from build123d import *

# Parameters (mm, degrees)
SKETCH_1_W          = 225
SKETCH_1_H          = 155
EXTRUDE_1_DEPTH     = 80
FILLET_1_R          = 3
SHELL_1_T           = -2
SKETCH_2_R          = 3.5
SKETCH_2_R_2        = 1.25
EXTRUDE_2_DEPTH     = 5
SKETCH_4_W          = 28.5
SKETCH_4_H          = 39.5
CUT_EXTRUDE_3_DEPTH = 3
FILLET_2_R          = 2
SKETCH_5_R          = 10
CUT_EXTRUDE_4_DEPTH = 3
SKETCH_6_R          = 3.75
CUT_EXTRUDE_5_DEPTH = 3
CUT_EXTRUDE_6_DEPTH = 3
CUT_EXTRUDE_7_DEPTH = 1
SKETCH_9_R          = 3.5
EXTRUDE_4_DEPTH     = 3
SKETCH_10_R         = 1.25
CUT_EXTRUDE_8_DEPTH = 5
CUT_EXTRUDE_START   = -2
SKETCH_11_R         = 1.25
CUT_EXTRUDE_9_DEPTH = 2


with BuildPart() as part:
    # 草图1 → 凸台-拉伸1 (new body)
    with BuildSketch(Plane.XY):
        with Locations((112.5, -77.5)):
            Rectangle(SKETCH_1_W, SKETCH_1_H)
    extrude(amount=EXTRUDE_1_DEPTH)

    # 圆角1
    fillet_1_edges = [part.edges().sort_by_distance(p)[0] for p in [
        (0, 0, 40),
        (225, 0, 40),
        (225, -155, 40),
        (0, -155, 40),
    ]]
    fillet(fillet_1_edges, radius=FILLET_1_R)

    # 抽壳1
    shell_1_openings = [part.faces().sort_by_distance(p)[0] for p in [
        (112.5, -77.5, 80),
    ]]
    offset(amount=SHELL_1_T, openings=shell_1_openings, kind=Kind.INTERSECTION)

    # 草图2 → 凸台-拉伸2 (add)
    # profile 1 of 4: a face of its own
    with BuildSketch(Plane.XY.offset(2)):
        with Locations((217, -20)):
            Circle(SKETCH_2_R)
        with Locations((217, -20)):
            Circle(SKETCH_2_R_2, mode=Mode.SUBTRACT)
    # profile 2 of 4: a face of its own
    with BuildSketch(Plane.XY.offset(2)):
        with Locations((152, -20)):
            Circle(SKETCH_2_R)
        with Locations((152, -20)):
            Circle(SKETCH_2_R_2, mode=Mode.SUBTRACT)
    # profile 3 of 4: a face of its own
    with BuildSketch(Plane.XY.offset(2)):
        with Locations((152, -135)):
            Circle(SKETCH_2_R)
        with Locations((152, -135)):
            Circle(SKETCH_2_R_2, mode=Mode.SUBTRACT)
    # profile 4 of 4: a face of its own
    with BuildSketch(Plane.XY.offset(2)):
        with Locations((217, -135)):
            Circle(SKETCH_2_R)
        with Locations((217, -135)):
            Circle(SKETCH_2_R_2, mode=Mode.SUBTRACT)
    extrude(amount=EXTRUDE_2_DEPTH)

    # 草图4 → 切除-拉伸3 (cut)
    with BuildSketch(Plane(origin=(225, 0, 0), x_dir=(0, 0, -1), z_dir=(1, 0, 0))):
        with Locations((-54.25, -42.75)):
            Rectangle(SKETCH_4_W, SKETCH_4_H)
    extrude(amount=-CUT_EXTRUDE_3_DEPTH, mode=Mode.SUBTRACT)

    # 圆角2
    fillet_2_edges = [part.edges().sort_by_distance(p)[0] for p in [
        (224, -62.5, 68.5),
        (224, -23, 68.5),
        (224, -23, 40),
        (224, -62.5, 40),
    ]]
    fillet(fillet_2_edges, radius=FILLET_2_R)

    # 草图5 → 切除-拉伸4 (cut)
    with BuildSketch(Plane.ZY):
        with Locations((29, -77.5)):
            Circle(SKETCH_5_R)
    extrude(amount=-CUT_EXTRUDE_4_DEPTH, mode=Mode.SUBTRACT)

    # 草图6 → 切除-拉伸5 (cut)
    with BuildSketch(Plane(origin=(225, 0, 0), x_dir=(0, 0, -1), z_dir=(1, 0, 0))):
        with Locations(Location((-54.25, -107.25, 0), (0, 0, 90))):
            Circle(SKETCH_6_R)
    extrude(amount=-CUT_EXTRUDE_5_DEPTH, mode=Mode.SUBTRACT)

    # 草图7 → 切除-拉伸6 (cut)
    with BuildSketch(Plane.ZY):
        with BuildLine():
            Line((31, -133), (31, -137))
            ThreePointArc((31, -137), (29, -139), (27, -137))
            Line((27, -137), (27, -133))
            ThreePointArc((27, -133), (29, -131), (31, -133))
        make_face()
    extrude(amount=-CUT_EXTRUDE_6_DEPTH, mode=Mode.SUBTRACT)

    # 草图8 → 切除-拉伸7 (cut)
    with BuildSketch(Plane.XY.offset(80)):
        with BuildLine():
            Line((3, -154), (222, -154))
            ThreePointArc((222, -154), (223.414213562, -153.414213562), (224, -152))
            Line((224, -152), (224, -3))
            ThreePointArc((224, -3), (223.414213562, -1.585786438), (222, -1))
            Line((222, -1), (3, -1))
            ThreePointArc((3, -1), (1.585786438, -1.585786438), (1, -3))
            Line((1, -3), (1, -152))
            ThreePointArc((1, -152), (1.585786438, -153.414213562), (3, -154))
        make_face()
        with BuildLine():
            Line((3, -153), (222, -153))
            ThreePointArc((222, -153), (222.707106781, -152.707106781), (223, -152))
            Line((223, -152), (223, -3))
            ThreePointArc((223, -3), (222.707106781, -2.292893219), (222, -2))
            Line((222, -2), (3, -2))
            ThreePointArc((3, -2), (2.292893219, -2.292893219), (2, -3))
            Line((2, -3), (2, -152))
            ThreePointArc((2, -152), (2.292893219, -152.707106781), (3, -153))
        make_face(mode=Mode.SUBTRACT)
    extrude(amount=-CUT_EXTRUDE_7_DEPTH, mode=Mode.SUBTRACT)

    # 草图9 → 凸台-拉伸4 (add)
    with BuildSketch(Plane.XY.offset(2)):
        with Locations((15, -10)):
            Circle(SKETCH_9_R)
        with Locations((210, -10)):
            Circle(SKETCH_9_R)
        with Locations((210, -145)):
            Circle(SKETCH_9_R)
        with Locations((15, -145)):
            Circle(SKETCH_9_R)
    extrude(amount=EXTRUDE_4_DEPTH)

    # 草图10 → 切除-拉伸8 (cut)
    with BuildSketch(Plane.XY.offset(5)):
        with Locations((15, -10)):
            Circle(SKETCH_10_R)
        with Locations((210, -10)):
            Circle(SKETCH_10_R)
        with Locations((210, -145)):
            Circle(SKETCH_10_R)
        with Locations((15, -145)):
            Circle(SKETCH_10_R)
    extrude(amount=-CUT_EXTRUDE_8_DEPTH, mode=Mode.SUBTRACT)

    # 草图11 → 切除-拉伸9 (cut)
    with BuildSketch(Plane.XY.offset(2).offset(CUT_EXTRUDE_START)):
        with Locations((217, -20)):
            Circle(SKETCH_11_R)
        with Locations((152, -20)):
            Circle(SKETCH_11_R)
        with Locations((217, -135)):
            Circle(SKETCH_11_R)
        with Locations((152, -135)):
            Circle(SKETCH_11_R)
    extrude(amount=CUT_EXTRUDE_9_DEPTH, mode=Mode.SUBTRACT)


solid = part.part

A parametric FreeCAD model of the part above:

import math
import FreeCAD as App
import Part
import Sketcher
from FreeCAD import Vector


def edges_at(feature, points):
    """Names of the edges that pass closest to the given points."""
    edges = feature.Shape.Edges
    near = lambda p: min(range(len(edges)), key=lambda i: edges[i].distToShape(Part.Vertex(*p))[0])
    return sorted({f"Edge{near(p) + 1}" for p in points})


def faces_at(feature, points):
    """Names of the faces that lie closest to the given points."""
    faces = feature.Shape.Faces
    near = lambda p: min(range(len(faces)), key=lambda i: faces[i].distToShape(Part.Vertex(*p))[0])
    return sorted({f"Face{near(p) + 1}" for p in points})

doc = App.newDocument("Part")
body = doc.addObject("PartDesign::Body", "Body")

sketch1 = body.newObject("Sketcher::SketchObject", "Sketch")
sketch1.AttachmentSupport = (doc.getObject("XY_Plane"), [""])
sketch1.MapMode = "FlatFace"
sketch1.addGeometry([
    Part.LineSegment(Vector(0, 0, 0), Vector(0, -155, 0)),
    Part.LineSegment(Vector(0, -155, 0), Vector(225, -155, 0)),
    Part.LineSegment(Vector(225, -155, 0), Vector(225, 0, 0)),
    Part.LineSegment(Vector(225, 0, 0), Vector(0, 0, 0)),
], False)
sketch1.addConstraint([
    Sketcher.Constraint("Coincident", 0, 2, 1, 1),
    Sketcher.Constraint("Coincident", 1, 2, 2, 1),
    Sketcher.Constraint("Coincident", 2, 2, 3, 1),
    Sketcher.Constraint("Coincident", 3, 2, 0, 1),
    Sketcher.Constraint("Vertical", 0),
    Sketcher.Constraint("Horizontal", 1),
    Sketcher.Constraint("Vertical", 2),
    Sketcher.Constraint("Horizontal", 3),
    Sketcher.Constraint("Coincident", 3, 2, -1, 1),
    Sketcher.Constraint("DistanceX", 1, 1, 1, 2, 225.0),
    Sketcher.Constraint("DistanceY", 0, 2, 0, 1, 155.0),
])
pad1 = body.newObject("PartDesign::Pad", "Pad")
pad1.Profile = sketch1
pad1.Length = 80
doc.recompute()

fillet = body.newObject("PartDesign::Fillet", "Fillet")
fillet.Base = (pad1, edges_at(pad1, [
    (0, 0, 40),
    (225, 0, 40),
    (225, -155, 40),
    (0, -155, 40),
]))
fillet.Radius = 3
doc.recompute()

thickness = body.newObject("PartDesign::Thickness", "Thickness")
thickness.Base = (fillet, faces_at(fillet, [(112.5, -77.5, 80)]))
thickness.Value = 2
thickness.Reversed = True
thickness.Join = "Intersection"

sketch2 = body.newObject("Sketcher::SketchObject", "Sketch001")
sketch2.AttachmentSupport = (doc.getObject("XY_Plane"), [""])
sketch2.MapMode = "FlatFace"
sketch2.AttachmentOffset = App.Placement(Vector(0, 0, 2), App.Rotation())
sketch2.addGeometry([
    Part.Circle(Vector(217, -20, 0), Vector(0, 0, 1), 3.5),
    Part.Circle(Vector(217, -20, 0), Vector(0, 0, 1), 1.2),
    Part.Circle(Vector(152, -20, 0), Vector(0, 0, 1), 3.5),
    Part.Circle(Vector(152, -20, 0), Vector(0, 0, 1), 1.2),
    Part.Circle(Vector(152, -135, 0), Vector(0, 0, 1), 3.5),
    Part.Circle(Vector(152, -135, 0), Vector(0, 0, 1), 1.2),
    Part.Circle(Vector(217, -135, 0), Vector(0, 0, 1), 3.5),
    Part.Circle(Vector(217, -135, 0), Vector(0, 0, 1), 1.2),
], False)
sketch2.addConstraint([
    Sketcher.Constraint("Coincident", 1, 3, 0, 3),
    Sketcher.Constraint("Coincident", 3, 3, 2, 3),
    Sketcher.Constraint("Coincident", 5, 3, 4, 3),
    Sketcher.Constraint("Coincident", 7, 3, 6, 3),
    Sketcher.Constraint("Equal", 0, 2),
    Sketcher.Constraint("Equal", 1, 3),
    Sketcher.Constraint("Equal", 2, 4),
    Sketcher.Constraint("Equal", 3, 5),
    Sketcher.Constraint("Equal", 4, 6),
    Sketcher.Constraint("Equal", 5, 7),
    Sketcher.Constraint("Horizontal", 1, 3, 2, 3),
    Sketcher.Constraint("Horizontal", 5, 3, 6, 3),
    Sketcher.Constraint("Vertical", 3, 3, 4, 3),
    Sketcher.Constraint("Vertical", 1, 3, 6, 3),
    Sketcher.Constraint("Diameter", 0, 7.0),
    Sketcher.Constraint("Diameter", 1, 2.5),
    Sketcher.Constraint("DistanceX", -1, 1, 0, 3, 217.0),
    Sketcher.Constraint("DistanceY", 0, 3, -1, 1, 20.0),
    Sketcher.Constraint("DistanceX", -1, 1, 2, 3, 152.0),
    Sketcher.Constraint("DistanceY", 4, 3, -1, 1, 135.0),
])
pad2 = body.newObject("PartDesign::Pad", "Pad001")
pad2.Profile = sketch2
pad2.Length = 5

sketch3 = body.newObject("Sketcher::SketchObject", "Sketch002")
sketch3.AttachmentSupport = (doc.getObject("YZ_Plane"), [""])
sketch3.MapMode = "FlatFace"
sketch3.AttachmentOffset = App.Placement(Vector(0, 0, 225), App.Rotation())
sketch3.addGeometry([
    Part.LineSegment(Vector(-23, 68, 0), Vector(-62, 68, 0)),
    Part.LineSegment(Vector(-62, 68, 0), Vector(-62, 40, 0)),
    Part.LineSegment(Vector(-62, 40, 0), Vector(-23, 40, 0)),
    Part.LineSegment(Vector(-23, 40, 0), Vector(-23, 68, 0)),
], False)
sketch3.addConstraint([
    Sketcher.Constraint("Coincident", 0, 2, 1, 1),
    Sketcher.Constraint("Coincident", 1, 2, 2, 1),
    Sketcher.Constraint("Coincident", 2, 2, 3, 1),
    Sketcher.Constraint("Coincident", 3, 2, 0, 1),
    Sketcher.Constraint("Horizontal", 0),
    Sketcher.Constraint("Vertical", 1),
    Sketcher.Constraint("Horizontal", 2),
    Sketcher.Constraint("Vertical", 3),
    Sketcher.Constraint("DistanceX", 0, 2, 0, 1, 39.5),
    Sketcher.Constraint("DistanceY", 1, 2, 1, 1, 28.5),
    Sketcher.Constraint("DistanceY", -1, 1, 1, 2, 40.0),
    Sketcher.Constraint("DistanceX", 2, 2, -1, 1, 23.0),
])
pocket1 = body.newObject("PartDesign::Pocket", "Pocket")
pocket1.Profile = sketch3
pocket1.Length = 3
doc.recompute()

fillet2 = body.newObject("PartDesign::Fillet", "Fillet001")
fillet2.Base = (pocket1, edges_at(pocket1, [
    (224, -62.5, 68.5),
    (224, -23, 68.5),
    (224, -23, 40),
    (224, -62.5, 40),
]))
fillet2.Radius = 2

sketch4 = body.newObject("Sketcher::SketchObject", "Sketch003")
sketch4.AttachmentSupport = (doc.getObject("YZ_Plane"), [""])
sketch4.MapMode = "FlatFace"
sketch4.addGeometry(Part.Circle(Vector(-78, 29, 0), Vector(0, 0, 1), 10), False)
sketch4.addConstraint([
    Sketcher.Constraint("Diameter", 0, 20.0),
    Sketcher.Constraint("DistanceY", -1, 1, 0, 3, 29.0),
    Sketcher.Constraint("DistanceX", 0, 3, -1, 1, 77.5),
])
pocket2 = body.newObject("PartDesign::Pocket", "Pocket001")
pocket2.Profile = sketch4
pocket2.Length = 3
pocket2.Reversed = True

sketch5 = body.newObject("Sketcher::SketchObject", "Sketch004")
sketch5.AttachmentSupport = (doc.getObject("YZ_Plane"), [""])
sketch5.MapMode = "FlatFace"
sketch5.AttachmentOffset = App.Placement(Vector(0, 0, 225), App.Rotation())
sketch5.addGeometry(Part.Circle(Vector(-107.2, 54.2, 0), Vector(0, 0, 1), 3.8), False)
sketch5.addConstraint([
    Sketcher.Constraint("Diameter", 0, 7.5),
    Sketcher.Constraint("DistanceX", 0, 3, -1, 1, 107.25),
    Sketcher.Constraint("DistanceY", -1, 1, 0, 3, 54.25),
])
pocket3 = body.newObject("PartDesign::Pocket", "Pocket002")
pocket3.Profile = sketch5
pocket3.Length = 3

sketch6 = body.newObject("Sketcher::SketchObject", "Sketch005")
sketch6.AttachmentSupport = (doc.getObject("YZ_Plane"), [""])
sketch6.MapMode = "FlatFace"
sketch6.addGeometry([
    Part.LineSegment(Vector(-137, 31, 0), Vector(-133, 31, 0)),
    Part.ArcOfCircle(Part.Circle(Vector(-133, 29, 0), Vector(0, 0, 1), 2), math.radians(-90), math.radians(90)),
    Part.LineSegment(Vector(-133, 27, 0), Vector(-137, 27, 0)),
    Part.ArcOfCircle(Part.Circle(Vector(-137, 29, 0), Vector(0, 0, 1), 2), math.radians(90), math.radians(270)),
], False)
sketch6.addConstraint([
    Sketcher.Constraint("Tangent", 0, 2, 1, 2),
    Sketcher.Constraint("Tangent", 1, 1, 2, 1),
    Sketcher.Constraint("Tangent", 2, 2, 3, 2),
    Sketcher.Constraint("Tangent", 3, 1, 0, 1),
    Sketcher.Constraint("Horizontal", 0),
    Sketcher.Constraint("Horizontal", 2),
    Sketcher.Constraint("Radius", 1, 2.0),
    Sketcher.Constraint("DistanceX", 0, 1, 0, 2, 4.0),
    Sketcher.Constraint("DistanceX", 1, 3, -1, 1, 133.0),
    Sketcher.Constraint("DistanceY", -1, 1, 1, 3, 29.0),
])
pocket4 = body.newObject("PartDesign::Pocket", "Pocket003")
pocket4.Profile = sketch6
pocket4.Length = 3
pocket4.Reversed = True

sketch7 = body.newObject("Sketcher::SketchObject", "Sketch006")
sketch7.AttachmentSupport = (doc.getObject("XY_Plane"), [""])
sketch7.MapMode = "FlatFace"
sketch7.AttachmentOffset = App.Placement(Vector(0, 0, 80), App.Rotation())
sketch7.addGeometry([
    Part.LineSegment(Vector(3, -154, 0), Vector(222, -154, 0)),
    Part.ArcOfCircle(Part.Circle(Vector(222, -152, 0), Vector(0, 0, 1), 2), math.radians(-90), math.radians(0)),
    Part.LineSegment(Vector(224, -152, 0), Vector(224, -3, 0)),
    Part.ArcOfCircle(Part.Circle(Vector(222, -3, 0), Vector(0, 0, 1), 2), math.radians(0), math.radians(90)),
    Part.LineSegment(Vector(222, -1, 0), Vector(3, -1, 0)),
    Part.ArcOfCircle(Part.Circle(Vector(3, -3, 0), Vector(0, 0, 1), 2), math.radians(90), math.radians(180)),
    Part.LineSegment(Vector(1, -3, 0), Vector(1, -152, 0)),
    Part.ArcOfCircle(Part.Circle(Vector(3, -152, 0), Vector(0, 0, 1), 2), math.radians(-180), math.radians(-90)),
    Part.LineSegment(Vector(222, -153, 0), Vector(3, -153, 0)),
    Part.ArcOfCircle(Part.Circle(Vector(3, -152, 0), Vector(0, 0, 1), 1), math.radians(-180), math.radians(-90)),
    Part.LineSegment(Vector(2, -152, 0), Vector(2, -3, 0)),
    Part.ArcOfCircle(Part.Circle(Vector(3, -3, 0), Vector(0, 0, 1), 1), math.radians(90), math.radians(180)),
    Part.LineSegment(Vector(3, -2, 0), Vector(222, -2, 0)),
    Part.ArcOfCircle(Part.Circle(Vector(222, -3, 0), Vector(0, 0, 1), 1), math.radians(0), math.radians(90)),
    Part.LineSegment(Vector(223, -3, 0), Vector(223, -152, 0)),
    Part.ArcOfCircle(Part.Circle(Vector(222, -152, 0), Vector(0, 0, 1), 1), math.radians(-90), math.radians(0)),
], False)
sketch7.addConstraint([
    Sketcher.Constraint("Tangent", 0, 2, 1, 1),
    Sketcher.Constraint("Tangent", 1, 2, 2, 1),
    Sketcher.Constraint("Tangent", 2, 2, 3, 1),
    Sketcher.Constraint("Tangent", 3, 2, 4, 1),
    Sketcher.Constraint("Tangent", 4, 2, 5, 1),
    Sketcher.Constraint("Tangent", 5, 2, 6, 1),
    Sketcher.Constraint("Tangent", 6, 2, 7, 1),
    Sketcher.Constraint("Tangent", 7, 2, 0, 1),
    Sketcher.Constraint("Tangent", 8, 2, 9, 2),
    Sketcher.Constraint("Tangent", 9, 1, 10, 1),
    Sketcher.Constraint("Tangent", 10, 2, 11, 2),
    Sketcher.Constraint("Tangent", 11, 1, 12, 1),
    Sketcher.Constraint("Tangent", 12, 2, 13, 2),
    Sketcher.Constraint("Tangent", 13, 1, 14, 1),
    Sketcher.Constraint("Tangent", 14, 2, 15, 2),
    Sketcher.Constraint("Tangent", 15, 1, 8, 1),
    Sketcher.Constraint("Horizontal", 0),
    Sketcher.Constraint("Vertical", 2),
    Sketcher.Constraint("Horizontal", 4),
    Sketcher.Constraint("Vertical", 6),
    Sketcher.Constraint("Horizontal", 8),
    Sketcher.Constraint("Vertical", 10),
    Sketcher.Constraint("Horizontal", 12),
    Sketcher.Constraint("Vertical", 14),
    Sketcher.Constraint("Coincident", 9, 3, 7, 3),
    Sketcher.Constraint("Coincident", 11, 3, 5, 3),
    Sketcher.Constraint("Coincident", 13, 3, 3, 3),
    Sketcher.Constraint("Equal", 1, 3),
    Sketcher.Constraint("Equal", 3, 5),
    Sketcher.Constraint("Equal", 5, 7),
    Sketcher.Constraint("Equal", 13, 15),
    Sketcher.Constraint("Radius", 1, 2.0),
    Sketcher.Constraint("Radius", 9, 1.0),
    Sketcher.Constraint("DistanceX", 0, 1, 0, 2, 219.0),
    Sketcher.Constraint("DistanceY", 2, 1, 2, 2, 149.0),
    Sketcher.Constraint("DistanceX", -1, 1, 1, 3, 222.0),
    Sketcher.Constraint("DistanceY", 1, 3, -1, 1, 152.0),
])
pocket5 = body.newObject("PartDesign::Pocket", "Pocket004")
pocket5.Profile = sketch7
pocket5.Length = 1

sketch8 = body.newObject("Sketcher::SketchObject", "Sketch007")
sketch8.AttachmentSupport = (doc.getObject("XY_Plane"), [""])
sketch8.MapMode = "FlatFace"
sketch8.AttachmentOffset = App.Placement(Vector(0, 0, 2), App.Rotation())
sketch8.addGeometry([
    Part.Circle(Vector(15, -10, 0), Vector(0, 0, 1), 3.5),
    Part.Circle(Vector(210, -10, 0), Vector(0, 0, 1), 3.5),
    Part.Circle(Vector(210, -145, 0), Vector(0, 0, 1), 3.5),
    Part.Circle(Vector(15, -145, 0), Vector(0, 0, 1), 3.5),
], False)
sketch8.addConstraint([
    Sketcher.Constraint("Equal", 0, 1),
    Sketcher.Constraint("Equal", 1, 2),
    Sketcher.Constraint("Equal", 2, 3),
    Sketcher.Constraint("Horizontal", 0, 3, 1, 3),
    Sketcher.Constraint("Horizontal", 2, 3, 3, 3),
    Sketcher.Constraint("Vertical", 1, 3, 2, 3),
    Sketcher.Constraint("Vertical", 0, 3, 3, 3),
    Sketcher.Constraint("Diameter", 0, 7.0),
    Sketcher.Constraint("DistanceX", -1, 1, 0, 3, 15.0),
    Sketcher.Constraint("DistanceY", 0, 3, -1, 1, 10.0),
    Sketcher.Constraint("DistanceX", -1, 1, 1, 3, 210.0),
    Sketcher.Constraint("DistanceY", 2, 3, -1, 1, 145.0),
])
pad3 = body.newObject("PartDesign::Pad", "Pad002")
pad3.Profile = sketch8
pad3.Length = 3

sketch9 = body.newObject("Sketcher::SketchObject", "Sketch008")
sketch9.AttachmentSupport = (doc.getObject("XY_Plane"), [""])
sketch9.MapMode = "FlatFace"
sketch9.AttachmentOffset = App.Placement(Vector(0, 0, 5), App.Rotation())
sketch9.addGeometry([
    Part.Circle(Vector(15, -10, 0), Vector(0, 0, 1), 1.2),
    Part.Circle(Vector(210, -10, 0), Vector(0, 0, 1), 1.2),
    Part.Circle(Vector(210, -145, 0), Vector(0, 0, 1), 1.2),
    Part.Circle(Vector(15, -145, 0), Vector(0, 0, 1), 1.2),
], False)
sketch9.addConstraint([
    Sketcher.Constraint("Equal", 0, 1),
    Sketcher.Constraint("Equal", 1, 2),
    Sketcher.Constraint("Equal", 2, 3),
    Sketcher.Constraint("Horizontal", 0, 3, 1, 3),
    Sketcher.Constraint("Horizontal", 2, 3, 3, 3),
    Sketcher.Constraint("Vertical", 1, 3, 2, 3),
    Sketcher.Constraint("Vertical", 0, 3, 3, 3),
    Sketcher.Constraint("Diameter", 0, 2.5),
    Sketcher.Constraint("DistanceX", -1, 1, 0, 3, 15.0),
    Sketcher.Constraint("DistanceY", 0, 3, -1, 1, 10.0),
    Sketcher.Constraint("DistanceX", -1, 1, 1, 3, 210.0),
    Sketcher.Constraint("DistanceY", 2, 3, -1, 1, 145.0),
])
pocket6 = body.newObject("PartDesign::Pocket", "Pocket005")
pocket6.Profile = sketch9
pocket6.Length = 5

sketch10 = body.newObject("Sketcher::SketchObject", "Sketch009")
sketch10.AttachmentSupport = (doc.getObject("XY_Plane"), [""])
sketch10.MapMode = "FlatFace"
sketch10.addGeometry([
    Part.Circle(Vector(217, -20, 0), Vector(0, 0, 1), 1.2),
    Part.Circle(Vector(152, -20, 0), Vector(0, 0, 1), 1.2),
    Part.Circle(Vector(217, -135, 0), Vector(0, 0, 1), 1.2),
    Part.Circle(Vector(152, -135, 0), Vector(0, 0, 1), 1.2),
], False)
sketch10.addConstraint([
    Sketcher.Constraint("Equal", 0, 1),
    Sketcher.Constraint("Equal", 1, 2),
    Sketcher.Constraint("Equal", 2, 3),
    Sketcher.Constraint("Horizontal", 0, 3, 1, 3),
    Sketcher.Constraint("Horizontal", 2, 3, 3, 3),
    Sketcher.Constraint("Vertical", 0, 3, 2, 3),
    Sketcher.Constraint("Vertical", 1, 3, 3, 3),
    Sketcher.Constraint("Diameter", 0, 2.5),
    Sketcher.Constraint("DistanceX", -1, 1, 0, 3, 217.0),
    Sketcher.Constraint("DistanceY", 0, 3, -1, 1, 20.0),
    Sketcher.Constraint("DistanceX", -1, 1, 1, 3, 152.0),
    Sketcher.Constraint("DistanceY", 2, 3, -1, 1, 135.0),
])
pocket7 = body.newObject("PartDesign::Pocket", "Pocket006")
pocket7.Profile = sketch10
pocket7.Length = 2
pocket7.Reversed = True

doc.recompute()
